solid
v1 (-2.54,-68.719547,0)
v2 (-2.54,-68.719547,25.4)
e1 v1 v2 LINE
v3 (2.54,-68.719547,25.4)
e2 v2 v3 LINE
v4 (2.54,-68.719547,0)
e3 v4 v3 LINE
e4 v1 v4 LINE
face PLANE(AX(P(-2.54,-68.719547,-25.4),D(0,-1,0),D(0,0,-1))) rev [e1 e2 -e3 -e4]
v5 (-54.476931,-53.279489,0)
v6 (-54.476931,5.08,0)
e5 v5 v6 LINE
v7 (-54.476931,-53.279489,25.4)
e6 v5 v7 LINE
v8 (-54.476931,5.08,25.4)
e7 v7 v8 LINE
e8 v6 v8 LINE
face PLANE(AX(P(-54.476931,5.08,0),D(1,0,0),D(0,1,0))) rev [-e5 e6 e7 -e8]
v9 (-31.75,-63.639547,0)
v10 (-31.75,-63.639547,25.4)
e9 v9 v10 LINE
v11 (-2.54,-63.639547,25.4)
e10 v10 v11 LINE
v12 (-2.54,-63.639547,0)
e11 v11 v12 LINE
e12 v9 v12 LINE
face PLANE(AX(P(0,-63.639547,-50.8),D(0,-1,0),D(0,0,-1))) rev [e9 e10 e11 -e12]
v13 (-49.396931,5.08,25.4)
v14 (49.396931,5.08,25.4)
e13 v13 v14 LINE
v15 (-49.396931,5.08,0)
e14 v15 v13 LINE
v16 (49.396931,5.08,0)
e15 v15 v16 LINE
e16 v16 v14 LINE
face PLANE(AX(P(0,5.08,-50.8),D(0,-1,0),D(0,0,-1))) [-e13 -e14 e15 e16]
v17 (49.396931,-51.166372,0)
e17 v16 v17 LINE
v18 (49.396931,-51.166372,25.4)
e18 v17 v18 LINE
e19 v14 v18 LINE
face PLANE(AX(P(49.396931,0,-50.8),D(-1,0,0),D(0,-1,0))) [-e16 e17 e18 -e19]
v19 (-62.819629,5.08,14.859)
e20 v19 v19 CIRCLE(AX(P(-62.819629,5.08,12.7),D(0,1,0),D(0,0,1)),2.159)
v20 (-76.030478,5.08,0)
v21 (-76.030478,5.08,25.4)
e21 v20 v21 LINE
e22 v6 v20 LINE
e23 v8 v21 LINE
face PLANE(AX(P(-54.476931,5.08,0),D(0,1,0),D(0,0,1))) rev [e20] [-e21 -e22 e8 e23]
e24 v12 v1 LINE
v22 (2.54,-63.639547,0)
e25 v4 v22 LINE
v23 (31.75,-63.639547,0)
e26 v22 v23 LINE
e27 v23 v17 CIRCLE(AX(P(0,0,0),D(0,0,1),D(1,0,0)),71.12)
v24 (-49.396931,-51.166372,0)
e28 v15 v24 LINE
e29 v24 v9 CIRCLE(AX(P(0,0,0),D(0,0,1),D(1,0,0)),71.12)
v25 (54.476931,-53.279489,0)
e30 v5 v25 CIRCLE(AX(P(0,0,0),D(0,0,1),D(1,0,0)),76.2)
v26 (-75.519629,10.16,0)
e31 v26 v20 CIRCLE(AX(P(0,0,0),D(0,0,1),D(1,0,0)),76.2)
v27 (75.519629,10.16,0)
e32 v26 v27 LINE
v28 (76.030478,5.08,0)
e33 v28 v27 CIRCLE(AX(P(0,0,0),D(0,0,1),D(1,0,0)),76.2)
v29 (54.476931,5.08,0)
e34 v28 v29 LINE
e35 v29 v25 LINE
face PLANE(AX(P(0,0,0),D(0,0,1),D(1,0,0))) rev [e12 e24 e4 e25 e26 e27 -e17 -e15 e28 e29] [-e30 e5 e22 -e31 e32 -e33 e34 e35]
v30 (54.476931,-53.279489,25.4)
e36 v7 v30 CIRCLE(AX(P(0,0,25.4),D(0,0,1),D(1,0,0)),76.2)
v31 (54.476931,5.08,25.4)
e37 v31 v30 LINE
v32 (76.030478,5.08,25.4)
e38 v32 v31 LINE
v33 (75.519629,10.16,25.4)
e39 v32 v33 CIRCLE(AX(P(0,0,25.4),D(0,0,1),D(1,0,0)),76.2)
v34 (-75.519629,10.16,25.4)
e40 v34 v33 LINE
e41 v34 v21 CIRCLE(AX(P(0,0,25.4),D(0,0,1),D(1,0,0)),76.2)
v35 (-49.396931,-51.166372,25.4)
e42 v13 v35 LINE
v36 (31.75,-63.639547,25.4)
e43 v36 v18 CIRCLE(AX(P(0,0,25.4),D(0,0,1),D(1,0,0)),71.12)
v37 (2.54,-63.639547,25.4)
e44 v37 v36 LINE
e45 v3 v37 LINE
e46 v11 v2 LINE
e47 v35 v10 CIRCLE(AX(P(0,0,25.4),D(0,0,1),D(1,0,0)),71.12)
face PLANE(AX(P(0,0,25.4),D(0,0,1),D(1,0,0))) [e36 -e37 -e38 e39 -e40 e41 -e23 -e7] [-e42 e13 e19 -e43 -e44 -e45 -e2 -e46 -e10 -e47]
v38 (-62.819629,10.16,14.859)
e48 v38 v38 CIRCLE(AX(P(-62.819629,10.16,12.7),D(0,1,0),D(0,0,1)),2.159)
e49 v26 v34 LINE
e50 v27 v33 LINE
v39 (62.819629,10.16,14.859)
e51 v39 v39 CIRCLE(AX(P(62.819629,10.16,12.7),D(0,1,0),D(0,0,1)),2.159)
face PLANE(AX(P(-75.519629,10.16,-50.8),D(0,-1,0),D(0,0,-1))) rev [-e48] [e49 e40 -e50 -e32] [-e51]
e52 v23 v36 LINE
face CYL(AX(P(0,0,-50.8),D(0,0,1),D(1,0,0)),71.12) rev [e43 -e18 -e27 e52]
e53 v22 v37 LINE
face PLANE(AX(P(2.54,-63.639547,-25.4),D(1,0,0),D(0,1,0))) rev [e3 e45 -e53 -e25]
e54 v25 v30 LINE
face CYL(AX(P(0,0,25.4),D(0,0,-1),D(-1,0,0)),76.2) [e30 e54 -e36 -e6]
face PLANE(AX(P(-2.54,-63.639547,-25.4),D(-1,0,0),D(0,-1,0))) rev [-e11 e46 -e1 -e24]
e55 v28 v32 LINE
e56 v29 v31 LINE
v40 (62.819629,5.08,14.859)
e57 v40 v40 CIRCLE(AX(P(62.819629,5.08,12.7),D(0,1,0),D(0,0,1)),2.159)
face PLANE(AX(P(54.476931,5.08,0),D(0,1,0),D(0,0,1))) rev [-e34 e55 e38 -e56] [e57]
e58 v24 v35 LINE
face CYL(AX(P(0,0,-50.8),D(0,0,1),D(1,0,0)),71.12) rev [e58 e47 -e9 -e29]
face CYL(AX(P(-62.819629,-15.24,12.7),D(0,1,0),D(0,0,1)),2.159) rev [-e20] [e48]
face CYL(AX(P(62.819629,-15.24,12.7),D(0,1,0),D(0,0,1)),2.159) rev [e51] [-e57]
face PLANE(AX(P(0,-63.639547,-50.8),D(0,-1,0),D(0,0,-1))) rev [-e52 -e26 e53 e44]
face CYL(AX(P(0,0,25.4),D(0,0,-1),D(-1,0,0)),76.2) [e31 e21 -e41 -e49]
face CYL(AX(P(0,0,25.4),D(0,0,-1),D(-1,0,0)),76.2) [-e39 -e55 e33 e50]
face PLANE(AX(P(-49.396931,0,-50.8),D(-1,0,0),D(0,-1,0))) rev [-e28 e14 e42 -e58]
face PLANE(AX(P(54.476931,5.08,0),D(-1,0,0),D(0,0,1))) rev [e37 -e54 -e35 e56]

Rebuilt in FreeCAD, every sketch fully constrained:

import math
import FreeCAD as App
import Part
import Sketcher
from FreeCAD import Vector
Q = App.Units.Quantity

doc = App.newDocument("Part")
body = doc.addObject("PartDesign::Body", "Body")

sketch1 = body.newObject("Sketcher::SketchObject", "Sketch")
sketch1.AttachmentSupport = (doc.getObject("XY_Plane"), [""])
sketch1.MapMode = "FlatFace"
sketch1.addGeometry(Part.Circle(Vector(0, 0, 0), Vector(0, 0, 1), 76), False)
sketch1.addConstraint(Sketcher.Constraint("Coincident", 0, 3, -1, 1))
sketch1.addConstraint(Sketcher.Constraint("Diameter", 0, Q("6 in")))
pad1 = body.newObject("PartDesign::Pad", "Pad")
pad1.Profile = sketch1
pad1.Length = Q("1 in")

sketch2 = body.newObject("Sketcher::SketchObject", "Sketch001")
sketch2.AttachmentSupport = (doc.getObject("XY_Plane"), [""])
sketch2.MapMode = "FlatFace"
sketch2.AttachmentOffset = App.Placement(Vector(0, 0, 1 * 25.4), App.Rotation())
sketch2.addGeometry(Part.LineSegment(Vector(-76, 10, 0), Vector(76, 10, 0)), False)
sketch2.addGeometry(Part.ArcOfCircle(Part.Circle(Vector(0, 0, 0), Vector(0, 0, 1), 76), math.radians(8), math.radians(172)), False)
sketch2.addConstraint(Sketcher.Constraint("Coincident", 0, 1, 1, 2))
sketch2.addConstraint(Sketcher.Constraint("Coincident", 1, 1, 0, 2))
sketch2.addConstraint(Sketcher.Constraint("Horizontal", 0))
sketch2.addConstraint(Sketcher.Constraint("Coincident", 1, 3, -1, 1))
sketch2.addConstraint(Sketcher.Constraint("Radius", 1, Q("3 in")))
sketch2.addConstraint(Sketcher.Constraint("DistanceY", -1, 1, 0, 1, Q("0.4 in")))
pocket1 = body.newObject("PartDesign::Pocket", "Pocket")
pocket1.Profile = sketch2
pocket1.Length = Q("3 in")

sketch3 = body.newObject("Sketcher::SketchObject", "Sketch002")
sketch3.AttachmentSupport = (doc.getObject("XY_Plane"), [""])
sketch3.MapMode = "FlatFace"
sketch3.AttachmentOffset = App.Placement(Vector(0, 0, 1 * 25.4), App.Rotation())
sketch3.addGeometry(Part.LineSegment(Vector(49, 5, 0), Vector(-49, 5, 0)), False)
sketch3.addGeometry(Part.LineSegment(Vector(-49, 5, 0), Vector(-49, -51, 0)), False)
sketch3.addGeometry(Part.ArcOfCircle(Part.Circle(Vector(0, 0, 0), Vector(0, 0, 1), 71), math.radians(-133.99), math.radians(-116.51)), False)
sketch3.addGeometry(Part.LineSegment(Vector(-32, -64, 0), Vector(32, -64, 0)), False)
sketch3.addGeometry(Part.ArcOfCircle(Part.Circle(Vector(0, 0, 0), Vector(0, 0, 1), 71), math.radians(-63.49), math.radians(-46.01)), False)
sketch3.addGeometry(Part.LineSegment(Vector(49, -51, 0), Vector(49, 5, 0)), False)
sketch3.addConstraint(Sketcher.Constraint("Coincident", 0, 2, 1, 1))
sketch3.addConstraint(Sketcher.Constraint("Coincident", 1, 2, 2, 1))
sketch3.addConstraint(Sketcher.Constraint("Coincident", 2, 2, 3, 1))
sketch3.addConstraint(Sketcher.Constraint("Coincident", 3, 2, 4, 1))
sketch3.addConstraint(Sketcher.Constraint("Coincident", 4, 2, 5, 1))
sketch3.addConstraint(Sketcher.Constraint("Coincident", 5, 2, 0, 1))
sketch3.addConstraint(Sketcher.Constraint("Horizontal", 0))
sketch3.addConstraint(Sketcher.Constraint("Vertical", 1))
sketch3.addConstraint(Sketcher.Constraint("Horizontal", 3))
sketch3.addConstraint(Sketcher.Constraint("Vertical", 5))
sketch3.addConstraint(Sketcher.Constraint("Coincident", 2, 3, -1, 1))
sketch3.addConstraint(Sketcher.Constraint("Coincident", 4, 3, -1, 1))
sketch3.addConstraint(Sketcher.Constraint("Equal", 2, 4))
sketch3.addConstraint(Sketcher.Constraint("Horizontal", 1, 2, 4, 2))
sketch3.addConstraint(Sketcher.Constraint("Radius", 2, Q("2.8 in")))
sketch3.addConstraint(Sketcher.Constraint("DistanceX", 3, 1, 3, 2, Q("2.5 in")))
sketch3.addConstraint(Sketcher.Constraint("DistanceY", -1, 1, 0, 2, Q("0.2 in")))
sketch3.addConstraint(Sketcher.Constraint("DistanceX", 0, 2, 0, 1, Q("98.793862 mm")))
pocket2 = body.newObject("PartDesign::Pocket", "Pocket001")
pocket2.Profile = sketch3
pocket2.Length = Q("3 in")

sketch4 = body.newObject("Sketcher::SketchObject", "Sketch003")
sketch4.AttachmentSupport = (doc.getObject("XY_Plane"), [""])
sketch4.MapMode = "FlatFace"
sketch4.AttachmentOffset = App.Placement(Vector(0, 0, 1 * 25.4), App.Rotation())
sketch4.addGeometry(Part.LineSegment(Vector(-3, -64, 0), Vector(-3, -69, 0)), False)
sketch4.addGeometry(Part.LineSegment(Vector(-3, -69, 0), Vector(3, -69, 0)), False)
sketch4.addGeometry(Part.LineSegment(Vector(3, -69, 0), Vector(3, -64, 0)), False)
sketch4.addGeometry(Part.LineSegment(Vector(3, -64, 0), Vector(-3, -64, 0)), False)
sketch4.addConstraint(Sketcher.Constraint("Coincident", 0, 2, 1, 1))
sketch4.addConstraint(Sketcher.Constraint("Coincident", 1, 2, 2, 1))
sketch4.addConstraint(Sketcher.Constraint("Coincident", 2, 2, 3, 1))
sketch4.addConstraint(Sketcher.Constraint("Coincident", 3, 2, 0, 1))
sketch4.addConstraint(Sketcher.Constraint("Vertical", 0))
sketch4.addConstraint(Sketcher.Constraint("Horizontal", 1))
sketch4.addConstraint(Sketcher.Constraint("Vertical", 2))
sketch4.addConstraint(Sketcher.Constraint("Horizontal", 3))
sketch4.addConstraint(Sketcher.Constraint("Equal", 3, 0))
sketch4.addConstraint(Sketcher.Constraint("DistanceX", 1, 1, 1, 2, Q("0.2 in")))
sketch4.addConstraint(Sketcher.Constraint("DistanceX", 0, 2, -1, 1, Q("0.1 in")))
sketch4.addConstraint(Sketcher.Constraint("DistanceY", 0, 2, -1, 1, Q("68.719547 mm")))
pocket3 = body.newObject("PartDesign::Pocket", "Pocket002")
pocket3.Profile = sketch4
pocket3.Length = Q("2 in")

sketch5 = body.newObject("Sketcher::SketchObject", "Sketch004")
sketch5.AttachmentSupport = (doc.getObject("XY_Plane"), [""])
sketch5.MapMode = "FlatFace"
sketch5.AttachmentOffset = App.Placement(Vector(0, 0, 1 * 25.4), App.Rotation())
sketch5.addGeometry(Part.LineSegment(Vector(76, 5, 0), Vector(54, 5, 0)), False)
sketch5.addGeometry(Part.LineSegment(Vector(54, 5, 0), Vector(54, -53, 0)), False)
sketch5.addGeometry(Part.ArcOfCircle(Part.Circle(Vector(0, 0, 0), Vector(0, 0, 1), 76), math.radians(-44), math.radians(4)), False)
sketch5.addGeometry(Part.LineSegment(Vector(-54, -53, 0), Vector(-54, 5, 0)), False)
sketch5.addGeometry(Part.LineSegment(Vector(-54, 5, 0), Vector(-76, 5, 0)), False)
sketch5.addGeometry(Part.ArcOfCircle(Part.Circle(Vector(0, 0, 0), Vector(0, 0, 1), 76), math.radians(176), math.radians(224)), False)
sketch5.addConstraint(Sketcher.Constraint("Coincident", 0, 2, 1, 1))
sketch5.addConstraint(Sketcher.Constraint("Coincident", 1, 2, 2, 1))
sketch5.addConstraint(Sketcher.Constraint("Coincident", 2, 2, 0, 1))
sketch5.addConstraint(Sketcher.Constraint("Coincident", 3, 2, 4, 1))
sketch5.addConstraint(Sketcher.Constraint("Coincident", 4, 2, 5, 1))
sketch5.addConstraint(Sketcher.Constraint("Coincident", 5, 2, 3, 1))
sketch5.addConstraint(Sketcher.Constraint("Horizontal", 0))
sketch5.addConstraint(Sketcher.Constraint("Vertical", 1))
sketch5.addConstraint(Sketcher.Constraint("Vertical", 3))
sketch5.addConstraint(Sketcher.Constraint("Horizontal", 4))
sketch5.addConstraint(Sketcher.Constraint("Coincident", 2, 3, -1, 1))
sketch5.addConstraint(Sketcher.Constraint("Coincident", 5, 3, -1, 1))
sketch5.addConstraint(Sketcher.Constraint("Equal", 2, 5))
sketch5.addConstraint(Sketcher.Constraint("Symmetric", 0, 2, 3, 2, -2))
sketch5.addConstraint(Sketcher.Constraint("Radius", 2, Q("3 in")))
sketch5.addConstraint(Sketcher.Constraint("DistanceY", -1, 1, 0, 2, Q("0.2 in")))
sketch5.addConstraint(Sketcher.Constraint("DistanceY", 1, 2, 1, 1, Q("58.359489 mm")))
pocket4 = body.newObject("PartDesign::Pocket", "Pocket003")
pocket4.Profile = sketch5
pocket4.Type = "ThroughAll"

sketch6 = body.newObject("Sketcher::SketchObject", "Sketch005")
sketch6.AttachmentSupport = (doc.getObject("XZ_Plane"), [""])
sketch6.MapMode = "FlatFace"
sketch6.AttachmentOffset = App.Placement(Vector(0, 0, -0.4 * 25.4), App.Rotation())
sketch6.addGeometry(Part.Circle(Vector(62.8, 12.7, 0), Vector(0, 0, 1), 2.2), False)
sketch6.addGeometry(Part.Circle(Vector(-62.8, 12.7, 0), Vector(0, 0, 1), 2.2), False)
sketch6.addConstraint(Sketcher.Constraint("Equal", 0, 1))
sketch6.addConstraint(Sketcher.Constraint("Symmetric", 0, 3, 1, 3, -2))
sketch6.addConstraint(Sketcher.Constraint("Diameter", 0, Q("0.17 in")))
sketch6.addConstraint(Sketcher.Constraint("DistanceY", -1, 1, 0, 3, Q("0.5 in")))
sketch6.addConstraint(Sketcher.Constraint("DistanceX", -1, 1, 0, 3, Q("62.819629 mm")))
pocket5 = body.newObject("PartDesign::Pocket", "Pocket004")
pocket5.Profile = sketch6
pocket5.Length = Q("1 in")
pocket5.Reversed = True

doc.recompute()
